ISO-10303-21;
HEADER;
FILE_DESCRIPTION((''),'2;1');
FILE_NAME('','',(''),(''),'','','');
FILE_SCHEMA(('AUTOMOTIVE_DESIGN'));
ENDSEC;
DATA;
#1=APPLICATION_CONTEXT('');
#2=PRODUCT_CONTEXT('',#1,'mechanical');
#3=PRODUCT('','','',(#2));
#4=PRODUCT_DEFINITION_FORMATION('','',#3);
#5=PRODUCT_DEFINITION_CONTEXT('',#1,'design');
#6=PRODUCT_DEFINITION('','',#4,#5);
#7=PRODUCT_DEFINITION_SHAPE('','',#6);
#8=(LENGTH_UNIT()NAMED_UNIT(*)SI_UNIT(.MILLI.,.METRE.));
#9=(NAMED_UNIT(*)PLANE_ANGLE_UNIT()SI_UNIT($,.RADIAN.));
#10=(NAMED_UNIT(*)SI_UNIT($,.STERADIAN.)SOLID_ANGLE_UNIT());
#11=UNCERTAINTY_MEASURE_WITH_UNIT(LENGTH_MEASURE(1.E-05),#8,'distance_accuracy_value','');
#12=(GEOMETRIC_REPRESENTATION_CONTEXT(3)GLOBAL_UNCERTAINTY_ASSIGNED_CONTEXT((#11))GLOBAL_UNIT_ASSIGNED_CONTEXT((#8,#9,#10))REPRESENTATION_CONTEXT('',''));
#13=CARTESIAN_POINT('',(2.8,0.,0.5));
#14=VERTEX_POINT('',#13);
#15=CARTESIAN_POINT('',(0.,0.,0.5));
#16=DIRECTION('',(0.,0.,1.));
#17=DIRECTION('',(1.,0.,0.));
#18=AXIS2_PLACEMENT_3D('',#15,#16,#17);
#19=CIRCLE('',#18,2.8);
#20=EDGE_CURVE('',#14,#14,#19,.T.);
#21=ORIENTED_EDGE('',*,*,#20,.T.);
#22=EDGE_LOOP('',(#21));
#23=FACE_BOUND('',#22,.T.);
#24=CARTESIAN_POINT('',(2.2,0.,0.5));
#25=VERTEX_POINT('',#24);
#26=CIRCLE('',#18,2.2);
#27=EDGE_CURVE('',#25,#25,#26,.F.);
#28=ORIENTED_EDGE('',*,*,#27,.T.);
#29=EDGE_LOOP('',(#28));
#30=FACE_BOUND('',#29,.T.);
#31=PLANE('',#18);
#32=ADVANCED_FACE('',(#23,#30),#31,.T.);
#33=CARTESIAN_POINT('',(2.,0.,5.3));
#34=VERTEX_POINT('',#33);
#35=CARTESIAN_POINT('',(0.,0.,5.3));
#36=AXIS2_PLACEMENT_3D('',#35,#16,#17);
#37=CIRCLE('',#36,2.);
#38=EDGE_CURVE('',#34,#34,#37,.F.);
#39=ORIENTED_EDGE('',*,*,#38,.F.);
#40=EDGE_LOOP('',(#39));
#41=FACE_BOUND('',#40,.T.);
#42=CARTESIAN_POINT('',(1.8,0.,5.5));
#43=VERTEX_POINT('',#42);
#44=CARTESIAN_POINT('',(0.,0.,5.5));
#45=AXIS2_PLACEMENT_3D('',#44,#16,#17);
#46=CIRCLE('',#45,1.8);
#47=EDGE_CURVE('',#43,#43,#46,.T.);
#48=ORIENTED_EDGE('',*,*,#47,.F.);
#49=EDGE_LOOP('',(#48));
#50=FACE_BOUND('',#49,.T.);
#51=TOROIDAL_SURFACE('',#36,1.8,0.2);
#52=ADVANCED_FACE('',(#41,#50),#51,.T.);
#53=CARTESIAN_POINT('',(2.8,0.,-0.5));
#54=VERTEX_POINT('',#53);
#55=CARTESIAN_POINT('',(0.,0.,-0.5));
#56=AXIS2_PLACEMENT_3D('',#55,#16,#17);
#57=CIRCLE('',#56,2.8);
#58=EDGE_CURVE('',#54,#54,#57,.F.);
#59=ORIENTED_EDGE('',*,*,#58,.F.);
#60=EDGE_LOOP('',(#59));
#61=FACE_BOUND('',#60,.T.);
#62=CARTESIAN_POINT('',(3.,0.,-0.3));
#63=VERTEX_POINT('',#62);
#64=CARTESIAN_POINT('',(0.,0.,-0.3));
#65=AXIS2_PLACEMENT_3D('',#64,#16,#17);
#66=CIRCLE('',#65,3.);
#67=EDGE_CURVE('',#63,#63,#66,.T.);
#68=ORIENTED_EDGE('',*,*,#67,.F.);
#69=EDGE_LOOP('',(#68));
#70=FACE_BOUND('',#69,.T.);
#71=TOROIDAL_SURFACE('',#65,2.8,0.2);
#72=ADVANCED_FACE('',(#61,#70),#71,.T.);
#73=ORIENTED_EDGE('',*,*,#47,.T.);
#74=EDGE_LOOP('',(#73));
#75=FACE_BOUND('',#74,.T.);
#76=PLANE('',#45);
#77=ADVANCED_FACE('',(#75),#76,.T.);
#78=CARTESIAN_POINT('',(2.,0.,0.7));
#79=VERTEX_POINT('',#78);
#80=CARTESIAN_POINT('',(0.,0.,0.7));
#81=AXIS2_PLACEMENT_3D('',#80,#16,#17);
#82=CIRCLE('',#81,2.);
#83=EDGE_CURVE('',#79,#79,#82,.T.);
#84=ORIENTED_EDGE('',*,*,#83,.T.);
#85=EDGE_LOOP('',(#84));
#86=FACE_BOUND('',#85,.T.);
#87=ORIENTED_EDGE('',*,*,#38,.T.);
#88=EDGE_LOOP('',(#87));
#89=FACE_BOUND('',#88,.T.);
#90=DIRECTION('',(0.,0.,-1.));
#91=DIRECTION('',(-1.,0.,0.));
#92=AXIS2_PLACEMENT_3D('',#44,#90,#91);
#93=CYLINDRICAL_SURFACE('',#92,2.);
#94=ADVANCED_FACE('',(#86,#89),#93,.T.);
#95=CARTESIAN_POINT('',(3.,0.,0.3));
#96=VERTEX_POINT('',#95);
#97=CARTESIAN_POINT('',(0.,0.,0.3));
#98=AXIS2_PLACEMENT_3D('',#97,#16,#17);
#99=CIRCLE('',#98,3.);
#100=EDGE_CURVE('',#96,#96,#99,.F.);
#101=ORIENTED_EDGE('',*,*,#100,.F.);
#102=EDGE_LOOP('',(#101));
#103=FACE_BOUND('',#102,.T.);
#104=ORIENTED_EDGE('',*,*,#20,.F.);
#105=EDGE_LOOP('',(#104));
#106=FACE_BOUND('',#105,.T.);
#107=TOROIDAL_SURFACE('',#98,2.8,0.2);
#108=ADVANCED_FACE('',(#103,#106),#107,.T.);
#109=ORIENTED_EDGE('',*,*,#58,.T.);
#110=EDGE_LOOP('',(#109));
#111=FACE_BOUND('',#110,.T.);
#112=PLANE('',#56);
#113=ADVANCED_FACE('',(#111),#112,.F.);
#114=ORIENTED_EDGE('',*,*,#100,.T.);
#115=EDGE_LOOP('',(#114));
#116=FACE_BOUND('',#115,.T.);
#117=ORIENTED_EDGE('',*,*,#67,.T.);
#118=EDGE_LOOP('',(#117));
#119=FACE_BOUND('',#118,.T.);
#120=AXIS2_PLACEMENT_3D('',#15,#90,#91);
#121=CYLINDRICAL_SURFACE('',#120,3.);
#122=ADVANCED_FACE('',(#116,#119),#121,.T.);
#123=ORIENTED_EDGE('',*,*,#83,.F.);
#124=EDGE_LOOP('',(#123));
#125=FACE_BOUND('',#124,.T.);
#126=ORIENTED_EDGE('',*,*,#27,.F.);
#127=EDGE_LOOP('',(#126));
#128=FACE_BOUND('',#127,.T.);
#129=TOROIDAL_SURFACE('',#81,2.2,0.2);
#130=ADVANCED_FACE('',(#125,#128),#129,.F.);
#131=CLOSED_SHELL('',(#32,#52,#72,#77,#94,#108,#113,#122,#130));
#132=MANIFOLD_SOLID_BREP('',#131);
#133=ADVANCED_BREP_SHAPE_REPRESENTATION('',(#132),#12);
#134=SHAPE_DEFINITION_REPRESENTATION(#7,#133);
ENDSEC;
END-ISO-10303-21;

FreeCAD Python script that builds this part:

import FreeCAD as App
import Part
import Sketcher
Q = App.Units.Quantity


def edges_at(feature, points):
    """Names of the edges that pass closest to the given points."""
    edges = feature.Shape.Edges
    near = lambda p: min(range(len(edges)), key=lambda i: edges[i].distToShape(Part.Vertex(*p))[0])
    return sorted({f"Edge{near(p) + 1}" for p in points})

doc = App.newDocument("Part")
body = doc.addObject("PartDesign::Body", "Body")

sketch1 = body.newObject("Sketcher::SketchObject", "Sketch")
sketch1.AttachmentSupport = (doc.getObject("XY_Plane"), [""])
sketch1.MapMode = "FlatFace"
sketch1.addGeometry(Part.Circle(App.Vector(0, 0, 0), App.Vector(0, 0, 1), 3), False)
sketch1.addConstraint([
    Sketcher.Constraint("Coincident", 0, 3, -1, 1),
    Sketcher.Constraint("Diameter", 0, Q("6 mm")),
])
pad1 = body.newObject("PartDesign::Pad", "Pad")
pad1.Profile = sketch1
pad1.Length = 1
pad1.Midplane = True

sketch2 = body.newObject("Sketcher::SketchObject", "Sketch001")
sketch2.AttachmentSupport = (doc.getObject("XY_Plane"), [""])
sketch2.MapMode = "FlatFace"
sketch2.AttachmentOffset = App.Placement(App.Vector(0, 0, 0.5), App.Rotation())
sketch2.addGeometry(Part.Circle(App.Vector(0, 0, 0), App.Vector(0, 0, 1), 2), False)
sketch2.addConstraint([
    Sketcher.Constraint("Coincident", 0, 3, -1, 1),
    Sketcher.Constraint("Diameter", 0, Q("4 mm")),
])
pad2 = body.newObject("PartDesign::Pad", "Pad001")
pad2.Profile = sketch2
pad2.Length = 5
doc.recompute()

fillet = body.newObject("PartDesign::Fillet", "Fillet")
fillet.Base = (pad2, edges_at(pad2, [
    (-3, 0, -0.5),
    (-3, 0, 0.5),
    (-2, 0, 0.5),
    (-2, 0, 5.5),
]))
fillet.Radius = 0.2

doc.recompute()
